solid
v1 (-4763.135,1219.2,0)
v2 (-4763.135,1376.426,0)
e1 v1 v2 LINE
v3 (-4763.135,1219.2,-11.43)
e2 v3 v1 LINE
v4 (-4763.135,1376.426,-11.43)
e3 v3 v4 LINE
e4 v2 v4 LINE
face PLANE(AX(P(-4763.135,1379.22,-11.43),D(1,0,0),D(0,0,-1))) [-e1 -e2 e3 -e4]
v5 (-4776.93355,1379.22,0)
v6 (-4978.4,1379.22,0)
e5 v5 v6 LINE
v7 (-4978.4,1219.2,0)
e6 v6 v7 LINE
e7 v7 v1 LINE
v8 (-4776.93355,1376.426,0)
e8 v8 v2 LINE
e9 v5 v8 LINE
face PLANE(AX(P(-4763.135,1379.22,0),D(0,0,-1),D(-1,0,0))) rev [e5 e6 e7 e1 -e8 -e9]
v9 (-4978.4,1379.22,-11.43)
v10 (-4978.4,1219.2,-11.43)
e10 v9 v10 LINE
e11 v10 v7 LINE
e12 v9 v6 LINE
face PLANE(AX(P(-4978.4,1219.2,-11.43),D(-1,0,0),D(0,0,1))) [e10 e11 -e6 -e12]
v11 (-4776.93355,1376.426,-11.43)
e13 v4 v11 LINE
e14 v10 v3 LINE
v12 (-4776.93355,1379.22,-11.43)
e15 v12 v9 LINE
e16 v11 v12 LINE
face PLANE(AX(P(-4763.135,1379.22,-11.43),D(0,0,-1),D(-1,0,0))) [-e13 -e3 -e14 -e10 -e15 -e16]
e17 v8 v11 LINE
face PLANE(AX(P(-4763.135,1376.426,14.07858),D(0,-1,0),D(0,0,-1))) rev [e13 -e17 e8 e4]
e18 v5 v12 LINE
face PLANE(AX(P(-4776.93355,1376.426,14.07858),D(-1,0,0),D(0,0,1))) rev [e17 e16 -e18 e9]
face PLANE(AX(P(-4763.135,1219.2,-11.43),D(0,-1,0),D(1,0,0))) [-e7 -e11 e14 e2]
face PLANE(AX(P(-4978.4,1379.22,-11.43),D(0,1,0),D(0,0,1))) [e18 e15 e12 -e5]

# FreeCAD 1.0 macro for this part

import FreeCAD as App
import Part
import Sketcher
Q = App.Units.Quantity


def add_polygon(sketch, points):
    """Adds a closed chain of lines whose ends are joined by coincident constraints."""
    first, n = sketch.GeometryCount, len(points)
    for a, b in zip(points, points[1:] + points[:1]):
        sketch.addGeometry(Part.LineSegment(App.Vector(*a, 0), App.Vector(*b, 0)), False)
    for i in range(n):
        sketch.addConstraint(Sketcher.Constraint("Coincident", first + i, 2, first + (i + 1) % n, 1))

doc = App.newDocument("Part")
body = doc.addObject("PartDesign::Body", "Body")

sketch1 = body.newObject("Sketcher::SketchObject", "Sketch")
sketch1.AttachmentSupport = (doc.getObject("XY_Plane"), [""])
sketch1.MapMode = "FlatFace"
add_polygon(sketch1, [(-4978, 1379), (-4978, 1219), (-4763, 1219), (-4763, 1379)])
sketch1.addConstraint(Sketcher.Constraint("Vertical", 0))
sketch1.addConstraint(Sketcher.Constraint("Horizontal", 1))
sketch1.addConstraint(Sketcher.Constraint("Vertical", 2))
sketch1.addConstraint(Sketcher.Constraint("Horizontal", 3))
sketch1.addConstraint(Sketcher.Constraint("DistanceY", 0, 2, 0, 1, Q("6.3 in")))
sketch1.addConstraint(Sketcher.Constraint("DistanceX", 0, 2, -1, 1, Q("196 in")))
sketch1.addConstraint(Sketcher.Constraint("DistanceY", -1, 1, 0, 2, Q("48 in")))
sketch1.addConstraint(Sketcher.Constraint("DistanceX", 1, 1, 1, 2, Q("8.475 in")))
pad1 = body.newObject("PartDesign::Pad", "Pad")
pad1.Profile = sketch1
pad1.Length = Q("0.45 in")
pad1.Reversed = True

sketch2 = body.newObject("Sketcher::SketchObject", "Sketch001")
sketch2.AttachmentSupport = (doc.getObject("XY_Plane"), [""])
sketch2.MapMode = "FlatFace"
sketch2.AttachmentOffset = App.Placement(App.Vector(0, 0, -0.45 * 25.4), App.Rotation())
add_polygon(sketch2, [(-4763.1, 1379.2), (-4763.1, 1376.4), (-4776.9, 1376.4), (-4776.9, 1379.2)])
sketch2.addConstraint(Sketcher.Constraint("Vertical", 0))
sketch2.addConstraint(Sketcher.Constraint("Horizontal", 1))
sketch2.addConstraint(Sketcher.Constraint("Vertical", 2))
sketch2.addConstraint(Sketcher.Constraint("Horizontal", 3))
sketch2.addConstraint(Sketcher.Constraint("DistanceY", 0, 2, 0, 1, Q("0.11 in")))
sketch2.addConstraint(Sketcher.Constraint("DistanceY", -1, 1, 2, 2, Q("54.3 in")))
sketch2.addConstraint(Sketcher.Constraint("DistanceX", 0, 2, -1, 1, Q("187.525 in")))
sketch2.addConstraint(Sketcher.Constraint("DistanceX", 1, 2, 1, 1, 13.79855))
pocket1 = body.newObject("PartDesign::Pocket", "Pocket")
pocket1.Profile = sketch2
pocket1.Length = Q("0.45 in")
pocket1.Reversed = True

doc.recompute()
